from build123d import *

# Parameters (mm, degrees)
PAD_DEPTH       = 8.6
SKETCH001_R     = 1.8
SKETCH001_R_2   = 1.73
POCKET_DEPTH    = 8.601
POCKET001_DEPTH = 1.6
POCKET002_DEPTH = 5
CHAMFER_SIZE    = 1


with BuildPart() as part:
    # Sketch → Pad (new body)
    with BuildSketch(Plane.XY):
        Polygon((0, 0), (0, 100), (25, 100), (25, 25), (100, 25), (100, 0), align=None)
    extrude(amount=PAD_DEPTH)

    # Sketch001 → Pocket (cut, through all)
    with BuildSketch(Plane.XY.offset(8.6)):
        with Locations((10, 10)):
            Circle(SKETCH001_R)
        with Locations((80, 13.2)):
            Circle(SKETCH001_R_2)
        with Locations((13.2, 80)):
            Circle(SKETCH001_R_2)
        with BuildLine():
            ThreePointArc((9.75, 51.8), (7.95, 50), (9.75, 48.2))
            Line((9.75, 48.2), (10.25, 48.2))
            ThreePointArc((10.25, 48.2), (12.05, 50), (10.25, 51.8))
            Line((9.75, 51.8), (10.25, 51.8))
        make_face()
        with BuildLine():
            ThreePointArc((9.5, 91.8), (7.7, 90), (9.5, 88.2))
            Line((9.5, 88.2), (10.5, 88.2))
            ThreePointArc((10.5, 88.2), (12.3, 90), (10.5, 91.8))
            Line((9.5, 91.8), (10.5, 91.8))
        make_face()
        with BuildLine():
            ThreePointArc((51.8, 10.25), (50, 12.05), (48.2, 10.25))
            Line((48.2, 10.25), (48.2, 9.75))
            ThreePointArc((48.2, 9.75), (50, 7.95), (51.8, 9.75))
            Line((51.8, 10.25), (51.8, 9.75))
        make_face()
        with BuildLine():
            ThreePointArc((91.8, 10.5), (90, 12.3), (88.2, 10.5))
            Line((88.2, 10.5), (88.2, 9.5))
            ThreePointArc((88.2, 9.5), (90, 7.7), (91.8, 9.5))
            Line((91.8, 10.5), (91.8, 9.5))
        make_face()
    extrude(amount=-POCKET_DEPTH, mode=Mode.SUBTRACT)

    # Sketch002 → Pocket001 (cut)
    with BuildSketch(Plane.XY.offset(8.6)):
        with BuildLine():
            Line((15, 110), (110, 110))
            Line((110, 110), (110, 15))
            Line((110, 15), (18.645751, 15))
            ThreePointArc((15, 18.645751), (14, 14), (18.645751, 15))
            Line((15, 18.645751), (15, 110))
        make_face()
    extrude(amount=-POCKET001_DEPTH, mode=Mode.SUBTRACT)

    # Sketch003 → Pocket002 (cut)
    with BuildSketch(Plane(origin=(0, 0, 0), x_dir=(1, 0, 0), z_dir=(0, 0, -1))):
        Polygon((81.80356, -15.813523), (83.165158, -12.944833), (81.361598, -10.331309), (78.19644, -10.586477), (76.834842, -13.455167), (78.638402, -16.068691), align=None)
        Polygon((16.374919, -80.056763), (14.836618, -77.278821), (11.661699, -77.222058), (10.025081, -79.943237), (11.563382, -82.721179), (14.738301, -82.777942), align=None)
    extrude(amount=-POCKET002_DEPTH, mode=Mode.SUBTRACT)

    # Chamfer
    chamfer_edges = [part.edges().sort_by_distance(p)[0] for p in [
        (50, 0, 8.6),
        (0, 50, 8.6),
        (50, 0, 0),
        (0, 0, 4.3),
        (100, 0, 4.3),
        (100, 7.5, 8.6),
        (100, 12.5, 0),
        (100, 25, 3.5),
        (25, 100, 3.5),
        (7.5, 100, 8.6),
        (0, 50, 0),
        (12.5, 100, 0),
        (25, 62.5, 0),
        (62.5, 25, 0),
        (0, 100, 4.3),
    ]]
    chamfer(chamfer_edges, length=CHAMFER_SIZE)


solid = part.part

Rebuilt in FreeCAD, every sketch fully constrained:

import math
import FreeCAD as App
import Part
import Sketcher
from FreeCAD import Vector


def edges_at(feature, points):
    """Names of the edges that pass closest to the given points."""
    edges = feature.Shape.Edges
    near = lambda p: min(range(len(edges)), key=lambda i: edges[i].distToShape(Part.Vertex(*p))[0])
    return sorted({f"Edge{near(p) + 1}" for p in points})


def add_polygon(sketch, points):
    """Adds a closed chain of lines whose ends are joined by coincident constraints."""
    first, n = sketch.GeometryCount, len(points)
    for a, b in zip(points, points[1:] + points[:1]):
        sketch.addGeometry(Part.LineSegment(App.Vector(*a, 0), App.Vector(*b, 0)), False)
    for i in range(n):
        sketch.addConstraint(Sketcher.Constraint("Coincident", first + i, 2, first + (i + 1) % n, 1))

doc = App.newDocument("Part")
body = doc.addObject("PartDesign::Body", "Body")

# Sketch on XY plane
sketch1 = doc.addObject("Sketcher::SketchObject", "Sketch")
body.addObject(sketch1)
sketch1.AttachmentSupport = (doc.XY_Plane, [""])
sketch1.MapMode = "FlatFace"
add_polygon(sketch1, [(0, 100), (0, 0), (100, 0), (100, 25), (25, 25), (25, 100)])  # lines 0-5
sketch1.addConstraint(Sketcher.Constraint("Vertical", 0))
sketch1.addConstraint(Sketcher.Constraint("Horizontal", 1))
sketch1.addConstraint(Sketcher.Constraint("Vertical", 2))
sketch1.addConstraint(Sketcher.Constraint("Horizontal", 3))
sketch1.addConstraint(Sketcher.Constraint("Vertical", 4))
sketch1.addConstraint(Sketcher.Constraint("Horizontal", 5))
sketch1.addConstraint(Sketcher.Constraint("Coincident", 0, 2, -1, 1))
sketch1.addConstraint(Sketcher.Constraint("Equal", 1, 0))
sketch1.addConstraint(Sketcher.Constraint("Equal", 5, 2))
sketch1.addConstraint(Sketcher.Constraint("DistanceX", 1, 1, 1, 2, 100.0))
sketch1.addConstraint(Sketcher.Constraint("DistanceX", 3, 2, 3, 1, 75.0))
pad1 = doc.addObject("PartDesign::Pad", "Pad")
body.addObject(pad1)
pad1.Profile = sketch1
pad1.Length = 8.6

# Sketch on XY plane
sketch2 = doc.addObject("Sketcher::SketchObject", "Sketch001")
body.addObject(sketch2)
sketch2.AttachmentSupport = (doc.XY_Plane, [""])
sketch2.MapMode = "FlatFace"
sketch2.AttachmentOffset = App.Placement(Vector(0, 0, 8.6), App.Rotation())
sketch2.addGeometry(Part.Circle(Vector(10, 10, 0), Vector(0, 0, 1), 1.8), False)
sketch2.addGeometry(Part.Circle(Vector(80, 13.2, 0), Vector(0, 0, 1), 1.7), False)
sketch2.addGeometry(Part.Circle(Vector(13.2, 80, 0), Vector(0, 0, 1), 1.7), False)
sketch2.addGeometry(Part.ArcOfCircle(Part.Circle(Vector(9.8, 50, 0), Vector(0, 0, 1), 1.8), math.radians(90), math.radians(270)), False)
sketch2.addGeometry(Part.LineSegment(Vector(9.8, 48.2, 0), Vector(10.2, 48.2, 0)), False)
sketch2.addGeometry(Part.ArcOfCircle(Part.Circle(Vector(10.2, 50, 0), Vector(0, 0, 1), 1.8), math.radians(-90), math.radians(90)), False)
sketch2.addGeometry(Part.LineSegment(Vector(10.2, 51.8, 0), Vector(9.8, 51.8, 0)), False)
sketch2.addGeometry(Part.ArcOfCircle(Part.Circle(Vector(9.5, 90, 0), Vector(0, 0, 1), 1.8), math.radians(90), math.radians(270)), False)
sketch2.addGeometry(Part.LineSegment(Vector(9.5, 88.2, 0), Vector(10.5, 88.2, 0)), False)
sketch2.addGeometry(Part.ArcOfCircle(Part.Circle(Vector(10.5, 90, 0), Vector(0, 0, 1), 1.8), math.radians(-90), math.radians(90)), False)
sketch2.addGeometry(Part.LineSegment(Vector(10.5, 91.8, 0), Vector(9.5, 91.8, 0)), False)
sketch2.addGeometry(Part.ArcOfCircle(Part.Circle(Vector(50, 10.2, 0), Vector(0, 0, 1), 1.8), math.radians(0), math.radians(180)), False)
sketch2.addGeometry(Part.LineSegment(Vector(48.2, 10.2, 0), Vector(48.2, 9.8, 0)), False)
sketch2.addGeometry(Part.ArcOfCircle(Part.Circle(Vector(50, 9.8, 0), Vector(0, 0, 1), 1.8), math.radians(180), math.radians(360)), False)
sketch2.addGeometry(Part.LineSegment(Vector(51.8, 9.8, 0), Vector(51.8, 10.2, 0)), False)
sketch2.addGeometry(Part.ArcOfCircle(Part.Circle(Vector(90, 10.5, 0), Vector(0, 0, 1), 1.8), math.radians(0), math.radians(180)), False)
sketch2.addGeometry(Part.LineSegment(Vector(88.2, 10.5, 0), Vector(88.2, 9.5, 0)), False)
sketch2.addGeometry(Part.ArcOfCircle(Part.Circle(Vector(90, 9.5, 0), Vector(0, 0, 1), 1.8), math.radians(180), math.radians(360)), False)
sketch2.addGeometry(Part.LineSegment(Vector(91.8, 9.5, 0), Vector(91.8, 10.5, 0)), False)
sketch2.addConstraint(Sketcher.Constraint("Tangent", 3, 2, 4, 1))
sketch2.addConstraint(Sketcher.Constraint("Tangent", 4, 2, 5, 1))
sketch2.addConstraint(Sketcher.Constraint("Tangent", 5, 2, 6, 1))
sketch2.addConstraint(Sketcher.Constraint("Tangent", 6, 2, 3, 1))
sketch2.addConstraint(Sketcher.Constraint("Tangent", 7, 2, 8, 1))
sketch2.addConstraint(Sketcher.Constraint("Tangent", 8, 2, 9, 1))
sketch2.addConstraint(Sketcher.Constraint("Tangent", 9, 2, 10, 1))
sketch2.addConstraint(Sketcher.Constraint("Tangent", 10, 2, 7, 1))
sketch2.addConstraint(Sketcher.Constraint("Tangent", 11, 2, 12, 1))
sketch2.addConstraint(Sketcher.Constraint("Tangent", 12, 2, 13, 1))
sketch2.addConstraint(Sketcher.Constraint("Tangent", 13, 2, 14, 1))
sketch2.addConstraint(Sketcher.Constraint("Tangent", 14, 2, 11, 1))
sketch2.addConstraint(Sketcher.Constraint("Tangent", 15, 2, 16, 1))
sketch2.addConstraint(Sketcher.Constraint("Tangent", 16, 2, 17, 1))
sketch2.addConstraint(Sketcher.Constraint("Tangent", 17, 2, 18, 1))
sketch2.addConstraint(Sketcher.Constraint("Tangent", 18, 2, 15, 1))
sketch2.addConstraint(Sketcher.Constraint("Horizontal", 4))
sketch2.addConstraint(Sketcher.Constraint("Horizontal", 6))
sketch2.addConstraint(Sketcher.Constraint("Horizontal", 8))
sketch2.addConstraint(Sketcher.Constraint("Horizontal", 10))
sketch2.addConstraint(Sketcher.Constraint("Vertical", 12))
sketch2.addConstraint(Sketcher.Constraint("Vertical", 14))
sketch2.addConstraint(Sketcher.Constraint("Vertical", 16))
sketch2.addConstraint(Sketcher.Constraint("Vertical", 18))
sketch2.addConstraint(Sketcher.Constraint("Equal", 1, 2))
sketch2.addConstraint(Sketcher.Constraint("Equal", 0, 3))
sketch2.addConstraint(Sketcher.Constraint("Equal", 5, 7))
sketch2.addConstraint(Sketcher.Constraint("Equal", 9, 11))
sketch2.addConstraint(Sketcher.Constraint("Equal", 13, 15))
sketch2.addConstraint(Sketcher.Constraint("Equal", 6, 12))
sketch2.addConstraint(Sketcher.Constraint("Equal", 10, 16))
sketch2.addConstraint(Sketcher.Constraint("Diameter", 0, 3.6))
sketch2.addConstraint(Sketcher.Constraint("Diameter", 1, 3.46))
sketch2.addConstraint(Sketcher.Constraint("DistanceX", 8, 1, 8, 2, 1.0))
sketch2.addConstraint(Sketcher.Constraint("DistanceX", 4, 1, 4, 2, 0.5))
sketch2.addConstraint(Sketcher.Constraint("DistanceX", -1, 1, 0, 3, 10.0))
sketch2.addConstraint(Sketcher.Constraint("DistanceY", -1, 1, 0, 3, 10.0))
sketch2.addConstraint(Sketcher.Constraint("DistanceX", -1, 1, 1, 3, 80.0))
sketch2.addConstraint(Sketcher.Constraint("DistanceY", -1, 1, 2, 3, 80.0))
sketch2.addConstraint(Sketcher.Constraint("DistanceY", -1, 1, 3, 3, 50.0))
sketch2.addConstraint(Sketcher.Constraint("DistanceY", -1, 1, 7, 3, 90.0))
sketch2.addConstraint(Sketcher.Constraint("DistanceX", -1, 1, 11, 3, 50.0))
sketch2.addConstraint(Sketcher.Constraint("DistanceX", -1, 1, 15, 3, 90.0))
sketch2.addConstraint(Sketcher.Constraint("DistanceY", -1, 1, 1, 3, 13.2))
sketch2.addConstraint(Sketcher.Constraint("DistanceX", -1, 1, 2, 3, 13.2))
sketch2.addConstraint(Sketcher.Constraint("DistanceX", -1, 1, 7, 3, 9.5))
sketch2.addConstraint(Sketcher.Constraint("DistanceY", -1, 1, 15, 3, 10.5))
sketch2.addConstraint(Sketcher.Constraint("DistanceX", -1, 1, 3, 3, 9.75))
sketch2.addConstraint(Sketcher.Constraint("DistanceY", -1, 1, 11, 3, 10.25))
pocket1 = doc.addObject("PartDesign::Pocket", "Pocket")
body.addObject(pocket1)
pocket1.Profile = sketch2
pocket1.Type = "ThroughAll"

# Sketch on XY plane
sketch3 = doc.addObject("Sketcher::SketchObject", "Sketch002")
body.addObject(sketch3)
sketch3.AttachmentSupport = (doc.XY_Plane, [""])
sketch3.MapMode = "FlatFace"
sketch3.AttachmentOffset = App.Placement(Vector(0, 0, 8.6), App.Rotation())
sketch3.addGeometry(Part.LineSegment(Vector(110, 110, 0), Vector(15, 110, 0)), False)
sketch3.addGeometry(Part.LineSegment(Vector(15, 110, 0), Vector(15, 18.6, 0)), False)
sketch3.addGeometry(Part.ArcOfCircle(Part.Circle(Vector(16, 16, 0), Vector(0, 0, 1), 2.8), math.radians(111), math.radians(339)), False)
sketch3.addGeometry(Part.LineSegment(Vector(18.6, 15, 0), Vector(110, 15, 0)), False)
sketch3.addGeometry(Part.LineSegment(Vector(110, 15, 0), Vector(110, 110, 0)), False)
sketch3.addConstraint(Sketcher.Constraint("Coincident", 0, 2, 1, 1))
sketch3.addConstraint(Sketcher.Constraint("Coincident", 1, 2, 2, 1))
sketch3.addConstraint(Sketcher.Constraint("Coincident", 2, 2, 3, 1))
sketch3.addConstraint(Sketcher.Constraint("Coincident", 3, 2, 4, 1))
sketch3.addConstraint(Sketcher.Constraint("Coincident", 4, 2, 0, 1))
sketch3.addConstraint(Sketcher.Constraint("Horizontal", 0))
sketch3.addConstraint(Sketcher.Constraint("Vertical", 1))
sketch3.addConstraint(Sketcher.Constraint("Horizontal", 3))
sketch3.addConstraint(Sketcher.Constraint("Vertical", 4))
sketch3.addConstraint(Sketcher.Constraint("Equal", 3, 1))
sketch3.addConstraint(Sketcher.Constraint("Equal", 0, 4))
sketch3.addConstraint(Sketcher.Constraint("DistanceX", 0, 2, 0, 1, 95.0))
sketch3.addConstraint(Sketcher.Constraint("DistanceX", -1, 1, 2, 3, 16.0))
sketch3.addConstraint(Sketcher.Constraint("DistanceY", -1, 1, 2, 3, 16.0))
sketch3.addConstraint(Sketcher.Constraint("DistanceX", -1, 1, 0, 2, 15.0))
sketch3.addConstraint(Sketcher.Constraint("Radius", 2, 2.828427))
pocket2 = doc.addObject("PartDesign::Pocket", "Pocket001")
body.addObject(pocket2)
pocket2.Profile = sketch3
pocket2.Length = 1.6

# Sketch on XY plane
sketch4 = doc.addObject("Sketcher::SketchObject", "Sketch003")
body.addObject(sketch4)
sketch4.AttachmentSupport = (doc.XY_Plane, [""])
sketch4.MapMode = "FlatFace"
add_polygon(sketch4, [(81.8, 15.8), (83.2, 12.9), (81.4, 10.3), (78.2, 10.6), (76.8, 13.5), (78.6, 16.1)])  # lines 0-5
add_polygon(sketch4, [(16.4, 80.1), (14.8, 77.3), (11.7, 77.2), (10, 79.9), (11.6, 82.7), (14.7, 82.8)])  # lines 6-11
sketch4.addConstraint(Sketcher.Constraint("Parallel", 0, 3))
sketch4.addConstraint(Sketcher.Constraint("Parallel", 1, 4))
sketch4.addConstraint(Sketcher.Constraint("Parallel", 2, 5))
sketch4.addConstraint(Sketcher.Constraint("Parallel", 6, 9))
sketch4.addConstraint(Sketcher.Constraint("Parallel", 7, 10))
sketch4.addConstraint(Sketcher.Constraint("Parallel", 8, 11))
sketch4.addConstraint(Sketcher.Constraint("Equal", 0, 1))
sketch4.addConstraint(Sketcher.Constraint("Equal", 1, 2))
sketch4.addConstraint(Sketcher.Constraint("Equal", 2, 3))
sketch4.addConstraint(Sketcher.Constraint("Equal", 5, 6))
sketch4.addConstraint(Sketcher.Constraint("Equal", 6, 7))
sketch4.addConstraint(Sketcher.Constraint("Equal", 7, 8))
sketch4.addConstraint(Sketcher.Constraint("Equal", 8, 9))
sketch4.addConstraint(Sketcher.Constraint("DistanceX", -1, 1, 1, 2, 81.361598))
sketch4.addConstraint(Sketcher.Constraint("DistanceX", -1, 1, 4, 2, 78.638402))
sketch4.addConstraint(Sketcher.Constraint("DistanceX", -1, 1, 7, 2, 11.661699))
sketch4.addConstraint(Sketcher.Constraint("DistanceX", -1, 1, 10, 2, 14.738301))
sketch4.addConstraint(Sketcher.Constraint("DistanceX", 3, 2, 2, 2, 1.361598))
sketch4.addConstraint(Sketcher.Constraint("DistanceX", 8, 2, 9, 2, 1.538301))
sketch4.addConstraint(Sketcher.Constraint("DistanceX", -1, 1, 0, 2, 83.165158))
sketch4.addConstraint(Sketcher.Constraint("DistanceY", -1, 1, 1, 2, 10.331309))
sketch4.addConstraint(Sketcher.Constraint("DistanceY", -1, 1, 4, 2, 16.068691))
sketch4.addConstraint(Sketcher.Constraint("DistanceY", -1, 1, 6, 2, 77.278821))
sketch4.addConstraint(Sketcher.Constraint("DistanceY", -1, 1, 7, 2, 77.222058))
pocket3 = doc.addObject("PartDesign::Pocket", "Pocket002")
body.addObject(pocket3)
pocket3.Profile = sketch4
pocket3.Length = 5
pocket3.Reversed = True
doc.recompute()

chamfer = doc.addObject("PartDesign::Chamfer", "Chamfer")
body.addObject(chamfer)
chamfer.Base = (pocket3, edges_at(pocket3, [
    (50, 0, 8.6),
    (0, 50, 8.6),
    (50, 0, 0),
    (0, 0, 4.3),
    (100, 0, 4.3),
    (100, 7.5, 8.6),
    (100, 12.5, 0),
    (100, 25, 3.5),
    (25, 100, 3.5),
    (7.5, 100, 8.6),
    (0, 50, 0),
    (12.5, 100, 0),
    (25, 62.5, 0),
    (62.5, 25, 0),
    (0, 100, 4.3),
]))
chamfer.Size = 1

doc.recompute()
